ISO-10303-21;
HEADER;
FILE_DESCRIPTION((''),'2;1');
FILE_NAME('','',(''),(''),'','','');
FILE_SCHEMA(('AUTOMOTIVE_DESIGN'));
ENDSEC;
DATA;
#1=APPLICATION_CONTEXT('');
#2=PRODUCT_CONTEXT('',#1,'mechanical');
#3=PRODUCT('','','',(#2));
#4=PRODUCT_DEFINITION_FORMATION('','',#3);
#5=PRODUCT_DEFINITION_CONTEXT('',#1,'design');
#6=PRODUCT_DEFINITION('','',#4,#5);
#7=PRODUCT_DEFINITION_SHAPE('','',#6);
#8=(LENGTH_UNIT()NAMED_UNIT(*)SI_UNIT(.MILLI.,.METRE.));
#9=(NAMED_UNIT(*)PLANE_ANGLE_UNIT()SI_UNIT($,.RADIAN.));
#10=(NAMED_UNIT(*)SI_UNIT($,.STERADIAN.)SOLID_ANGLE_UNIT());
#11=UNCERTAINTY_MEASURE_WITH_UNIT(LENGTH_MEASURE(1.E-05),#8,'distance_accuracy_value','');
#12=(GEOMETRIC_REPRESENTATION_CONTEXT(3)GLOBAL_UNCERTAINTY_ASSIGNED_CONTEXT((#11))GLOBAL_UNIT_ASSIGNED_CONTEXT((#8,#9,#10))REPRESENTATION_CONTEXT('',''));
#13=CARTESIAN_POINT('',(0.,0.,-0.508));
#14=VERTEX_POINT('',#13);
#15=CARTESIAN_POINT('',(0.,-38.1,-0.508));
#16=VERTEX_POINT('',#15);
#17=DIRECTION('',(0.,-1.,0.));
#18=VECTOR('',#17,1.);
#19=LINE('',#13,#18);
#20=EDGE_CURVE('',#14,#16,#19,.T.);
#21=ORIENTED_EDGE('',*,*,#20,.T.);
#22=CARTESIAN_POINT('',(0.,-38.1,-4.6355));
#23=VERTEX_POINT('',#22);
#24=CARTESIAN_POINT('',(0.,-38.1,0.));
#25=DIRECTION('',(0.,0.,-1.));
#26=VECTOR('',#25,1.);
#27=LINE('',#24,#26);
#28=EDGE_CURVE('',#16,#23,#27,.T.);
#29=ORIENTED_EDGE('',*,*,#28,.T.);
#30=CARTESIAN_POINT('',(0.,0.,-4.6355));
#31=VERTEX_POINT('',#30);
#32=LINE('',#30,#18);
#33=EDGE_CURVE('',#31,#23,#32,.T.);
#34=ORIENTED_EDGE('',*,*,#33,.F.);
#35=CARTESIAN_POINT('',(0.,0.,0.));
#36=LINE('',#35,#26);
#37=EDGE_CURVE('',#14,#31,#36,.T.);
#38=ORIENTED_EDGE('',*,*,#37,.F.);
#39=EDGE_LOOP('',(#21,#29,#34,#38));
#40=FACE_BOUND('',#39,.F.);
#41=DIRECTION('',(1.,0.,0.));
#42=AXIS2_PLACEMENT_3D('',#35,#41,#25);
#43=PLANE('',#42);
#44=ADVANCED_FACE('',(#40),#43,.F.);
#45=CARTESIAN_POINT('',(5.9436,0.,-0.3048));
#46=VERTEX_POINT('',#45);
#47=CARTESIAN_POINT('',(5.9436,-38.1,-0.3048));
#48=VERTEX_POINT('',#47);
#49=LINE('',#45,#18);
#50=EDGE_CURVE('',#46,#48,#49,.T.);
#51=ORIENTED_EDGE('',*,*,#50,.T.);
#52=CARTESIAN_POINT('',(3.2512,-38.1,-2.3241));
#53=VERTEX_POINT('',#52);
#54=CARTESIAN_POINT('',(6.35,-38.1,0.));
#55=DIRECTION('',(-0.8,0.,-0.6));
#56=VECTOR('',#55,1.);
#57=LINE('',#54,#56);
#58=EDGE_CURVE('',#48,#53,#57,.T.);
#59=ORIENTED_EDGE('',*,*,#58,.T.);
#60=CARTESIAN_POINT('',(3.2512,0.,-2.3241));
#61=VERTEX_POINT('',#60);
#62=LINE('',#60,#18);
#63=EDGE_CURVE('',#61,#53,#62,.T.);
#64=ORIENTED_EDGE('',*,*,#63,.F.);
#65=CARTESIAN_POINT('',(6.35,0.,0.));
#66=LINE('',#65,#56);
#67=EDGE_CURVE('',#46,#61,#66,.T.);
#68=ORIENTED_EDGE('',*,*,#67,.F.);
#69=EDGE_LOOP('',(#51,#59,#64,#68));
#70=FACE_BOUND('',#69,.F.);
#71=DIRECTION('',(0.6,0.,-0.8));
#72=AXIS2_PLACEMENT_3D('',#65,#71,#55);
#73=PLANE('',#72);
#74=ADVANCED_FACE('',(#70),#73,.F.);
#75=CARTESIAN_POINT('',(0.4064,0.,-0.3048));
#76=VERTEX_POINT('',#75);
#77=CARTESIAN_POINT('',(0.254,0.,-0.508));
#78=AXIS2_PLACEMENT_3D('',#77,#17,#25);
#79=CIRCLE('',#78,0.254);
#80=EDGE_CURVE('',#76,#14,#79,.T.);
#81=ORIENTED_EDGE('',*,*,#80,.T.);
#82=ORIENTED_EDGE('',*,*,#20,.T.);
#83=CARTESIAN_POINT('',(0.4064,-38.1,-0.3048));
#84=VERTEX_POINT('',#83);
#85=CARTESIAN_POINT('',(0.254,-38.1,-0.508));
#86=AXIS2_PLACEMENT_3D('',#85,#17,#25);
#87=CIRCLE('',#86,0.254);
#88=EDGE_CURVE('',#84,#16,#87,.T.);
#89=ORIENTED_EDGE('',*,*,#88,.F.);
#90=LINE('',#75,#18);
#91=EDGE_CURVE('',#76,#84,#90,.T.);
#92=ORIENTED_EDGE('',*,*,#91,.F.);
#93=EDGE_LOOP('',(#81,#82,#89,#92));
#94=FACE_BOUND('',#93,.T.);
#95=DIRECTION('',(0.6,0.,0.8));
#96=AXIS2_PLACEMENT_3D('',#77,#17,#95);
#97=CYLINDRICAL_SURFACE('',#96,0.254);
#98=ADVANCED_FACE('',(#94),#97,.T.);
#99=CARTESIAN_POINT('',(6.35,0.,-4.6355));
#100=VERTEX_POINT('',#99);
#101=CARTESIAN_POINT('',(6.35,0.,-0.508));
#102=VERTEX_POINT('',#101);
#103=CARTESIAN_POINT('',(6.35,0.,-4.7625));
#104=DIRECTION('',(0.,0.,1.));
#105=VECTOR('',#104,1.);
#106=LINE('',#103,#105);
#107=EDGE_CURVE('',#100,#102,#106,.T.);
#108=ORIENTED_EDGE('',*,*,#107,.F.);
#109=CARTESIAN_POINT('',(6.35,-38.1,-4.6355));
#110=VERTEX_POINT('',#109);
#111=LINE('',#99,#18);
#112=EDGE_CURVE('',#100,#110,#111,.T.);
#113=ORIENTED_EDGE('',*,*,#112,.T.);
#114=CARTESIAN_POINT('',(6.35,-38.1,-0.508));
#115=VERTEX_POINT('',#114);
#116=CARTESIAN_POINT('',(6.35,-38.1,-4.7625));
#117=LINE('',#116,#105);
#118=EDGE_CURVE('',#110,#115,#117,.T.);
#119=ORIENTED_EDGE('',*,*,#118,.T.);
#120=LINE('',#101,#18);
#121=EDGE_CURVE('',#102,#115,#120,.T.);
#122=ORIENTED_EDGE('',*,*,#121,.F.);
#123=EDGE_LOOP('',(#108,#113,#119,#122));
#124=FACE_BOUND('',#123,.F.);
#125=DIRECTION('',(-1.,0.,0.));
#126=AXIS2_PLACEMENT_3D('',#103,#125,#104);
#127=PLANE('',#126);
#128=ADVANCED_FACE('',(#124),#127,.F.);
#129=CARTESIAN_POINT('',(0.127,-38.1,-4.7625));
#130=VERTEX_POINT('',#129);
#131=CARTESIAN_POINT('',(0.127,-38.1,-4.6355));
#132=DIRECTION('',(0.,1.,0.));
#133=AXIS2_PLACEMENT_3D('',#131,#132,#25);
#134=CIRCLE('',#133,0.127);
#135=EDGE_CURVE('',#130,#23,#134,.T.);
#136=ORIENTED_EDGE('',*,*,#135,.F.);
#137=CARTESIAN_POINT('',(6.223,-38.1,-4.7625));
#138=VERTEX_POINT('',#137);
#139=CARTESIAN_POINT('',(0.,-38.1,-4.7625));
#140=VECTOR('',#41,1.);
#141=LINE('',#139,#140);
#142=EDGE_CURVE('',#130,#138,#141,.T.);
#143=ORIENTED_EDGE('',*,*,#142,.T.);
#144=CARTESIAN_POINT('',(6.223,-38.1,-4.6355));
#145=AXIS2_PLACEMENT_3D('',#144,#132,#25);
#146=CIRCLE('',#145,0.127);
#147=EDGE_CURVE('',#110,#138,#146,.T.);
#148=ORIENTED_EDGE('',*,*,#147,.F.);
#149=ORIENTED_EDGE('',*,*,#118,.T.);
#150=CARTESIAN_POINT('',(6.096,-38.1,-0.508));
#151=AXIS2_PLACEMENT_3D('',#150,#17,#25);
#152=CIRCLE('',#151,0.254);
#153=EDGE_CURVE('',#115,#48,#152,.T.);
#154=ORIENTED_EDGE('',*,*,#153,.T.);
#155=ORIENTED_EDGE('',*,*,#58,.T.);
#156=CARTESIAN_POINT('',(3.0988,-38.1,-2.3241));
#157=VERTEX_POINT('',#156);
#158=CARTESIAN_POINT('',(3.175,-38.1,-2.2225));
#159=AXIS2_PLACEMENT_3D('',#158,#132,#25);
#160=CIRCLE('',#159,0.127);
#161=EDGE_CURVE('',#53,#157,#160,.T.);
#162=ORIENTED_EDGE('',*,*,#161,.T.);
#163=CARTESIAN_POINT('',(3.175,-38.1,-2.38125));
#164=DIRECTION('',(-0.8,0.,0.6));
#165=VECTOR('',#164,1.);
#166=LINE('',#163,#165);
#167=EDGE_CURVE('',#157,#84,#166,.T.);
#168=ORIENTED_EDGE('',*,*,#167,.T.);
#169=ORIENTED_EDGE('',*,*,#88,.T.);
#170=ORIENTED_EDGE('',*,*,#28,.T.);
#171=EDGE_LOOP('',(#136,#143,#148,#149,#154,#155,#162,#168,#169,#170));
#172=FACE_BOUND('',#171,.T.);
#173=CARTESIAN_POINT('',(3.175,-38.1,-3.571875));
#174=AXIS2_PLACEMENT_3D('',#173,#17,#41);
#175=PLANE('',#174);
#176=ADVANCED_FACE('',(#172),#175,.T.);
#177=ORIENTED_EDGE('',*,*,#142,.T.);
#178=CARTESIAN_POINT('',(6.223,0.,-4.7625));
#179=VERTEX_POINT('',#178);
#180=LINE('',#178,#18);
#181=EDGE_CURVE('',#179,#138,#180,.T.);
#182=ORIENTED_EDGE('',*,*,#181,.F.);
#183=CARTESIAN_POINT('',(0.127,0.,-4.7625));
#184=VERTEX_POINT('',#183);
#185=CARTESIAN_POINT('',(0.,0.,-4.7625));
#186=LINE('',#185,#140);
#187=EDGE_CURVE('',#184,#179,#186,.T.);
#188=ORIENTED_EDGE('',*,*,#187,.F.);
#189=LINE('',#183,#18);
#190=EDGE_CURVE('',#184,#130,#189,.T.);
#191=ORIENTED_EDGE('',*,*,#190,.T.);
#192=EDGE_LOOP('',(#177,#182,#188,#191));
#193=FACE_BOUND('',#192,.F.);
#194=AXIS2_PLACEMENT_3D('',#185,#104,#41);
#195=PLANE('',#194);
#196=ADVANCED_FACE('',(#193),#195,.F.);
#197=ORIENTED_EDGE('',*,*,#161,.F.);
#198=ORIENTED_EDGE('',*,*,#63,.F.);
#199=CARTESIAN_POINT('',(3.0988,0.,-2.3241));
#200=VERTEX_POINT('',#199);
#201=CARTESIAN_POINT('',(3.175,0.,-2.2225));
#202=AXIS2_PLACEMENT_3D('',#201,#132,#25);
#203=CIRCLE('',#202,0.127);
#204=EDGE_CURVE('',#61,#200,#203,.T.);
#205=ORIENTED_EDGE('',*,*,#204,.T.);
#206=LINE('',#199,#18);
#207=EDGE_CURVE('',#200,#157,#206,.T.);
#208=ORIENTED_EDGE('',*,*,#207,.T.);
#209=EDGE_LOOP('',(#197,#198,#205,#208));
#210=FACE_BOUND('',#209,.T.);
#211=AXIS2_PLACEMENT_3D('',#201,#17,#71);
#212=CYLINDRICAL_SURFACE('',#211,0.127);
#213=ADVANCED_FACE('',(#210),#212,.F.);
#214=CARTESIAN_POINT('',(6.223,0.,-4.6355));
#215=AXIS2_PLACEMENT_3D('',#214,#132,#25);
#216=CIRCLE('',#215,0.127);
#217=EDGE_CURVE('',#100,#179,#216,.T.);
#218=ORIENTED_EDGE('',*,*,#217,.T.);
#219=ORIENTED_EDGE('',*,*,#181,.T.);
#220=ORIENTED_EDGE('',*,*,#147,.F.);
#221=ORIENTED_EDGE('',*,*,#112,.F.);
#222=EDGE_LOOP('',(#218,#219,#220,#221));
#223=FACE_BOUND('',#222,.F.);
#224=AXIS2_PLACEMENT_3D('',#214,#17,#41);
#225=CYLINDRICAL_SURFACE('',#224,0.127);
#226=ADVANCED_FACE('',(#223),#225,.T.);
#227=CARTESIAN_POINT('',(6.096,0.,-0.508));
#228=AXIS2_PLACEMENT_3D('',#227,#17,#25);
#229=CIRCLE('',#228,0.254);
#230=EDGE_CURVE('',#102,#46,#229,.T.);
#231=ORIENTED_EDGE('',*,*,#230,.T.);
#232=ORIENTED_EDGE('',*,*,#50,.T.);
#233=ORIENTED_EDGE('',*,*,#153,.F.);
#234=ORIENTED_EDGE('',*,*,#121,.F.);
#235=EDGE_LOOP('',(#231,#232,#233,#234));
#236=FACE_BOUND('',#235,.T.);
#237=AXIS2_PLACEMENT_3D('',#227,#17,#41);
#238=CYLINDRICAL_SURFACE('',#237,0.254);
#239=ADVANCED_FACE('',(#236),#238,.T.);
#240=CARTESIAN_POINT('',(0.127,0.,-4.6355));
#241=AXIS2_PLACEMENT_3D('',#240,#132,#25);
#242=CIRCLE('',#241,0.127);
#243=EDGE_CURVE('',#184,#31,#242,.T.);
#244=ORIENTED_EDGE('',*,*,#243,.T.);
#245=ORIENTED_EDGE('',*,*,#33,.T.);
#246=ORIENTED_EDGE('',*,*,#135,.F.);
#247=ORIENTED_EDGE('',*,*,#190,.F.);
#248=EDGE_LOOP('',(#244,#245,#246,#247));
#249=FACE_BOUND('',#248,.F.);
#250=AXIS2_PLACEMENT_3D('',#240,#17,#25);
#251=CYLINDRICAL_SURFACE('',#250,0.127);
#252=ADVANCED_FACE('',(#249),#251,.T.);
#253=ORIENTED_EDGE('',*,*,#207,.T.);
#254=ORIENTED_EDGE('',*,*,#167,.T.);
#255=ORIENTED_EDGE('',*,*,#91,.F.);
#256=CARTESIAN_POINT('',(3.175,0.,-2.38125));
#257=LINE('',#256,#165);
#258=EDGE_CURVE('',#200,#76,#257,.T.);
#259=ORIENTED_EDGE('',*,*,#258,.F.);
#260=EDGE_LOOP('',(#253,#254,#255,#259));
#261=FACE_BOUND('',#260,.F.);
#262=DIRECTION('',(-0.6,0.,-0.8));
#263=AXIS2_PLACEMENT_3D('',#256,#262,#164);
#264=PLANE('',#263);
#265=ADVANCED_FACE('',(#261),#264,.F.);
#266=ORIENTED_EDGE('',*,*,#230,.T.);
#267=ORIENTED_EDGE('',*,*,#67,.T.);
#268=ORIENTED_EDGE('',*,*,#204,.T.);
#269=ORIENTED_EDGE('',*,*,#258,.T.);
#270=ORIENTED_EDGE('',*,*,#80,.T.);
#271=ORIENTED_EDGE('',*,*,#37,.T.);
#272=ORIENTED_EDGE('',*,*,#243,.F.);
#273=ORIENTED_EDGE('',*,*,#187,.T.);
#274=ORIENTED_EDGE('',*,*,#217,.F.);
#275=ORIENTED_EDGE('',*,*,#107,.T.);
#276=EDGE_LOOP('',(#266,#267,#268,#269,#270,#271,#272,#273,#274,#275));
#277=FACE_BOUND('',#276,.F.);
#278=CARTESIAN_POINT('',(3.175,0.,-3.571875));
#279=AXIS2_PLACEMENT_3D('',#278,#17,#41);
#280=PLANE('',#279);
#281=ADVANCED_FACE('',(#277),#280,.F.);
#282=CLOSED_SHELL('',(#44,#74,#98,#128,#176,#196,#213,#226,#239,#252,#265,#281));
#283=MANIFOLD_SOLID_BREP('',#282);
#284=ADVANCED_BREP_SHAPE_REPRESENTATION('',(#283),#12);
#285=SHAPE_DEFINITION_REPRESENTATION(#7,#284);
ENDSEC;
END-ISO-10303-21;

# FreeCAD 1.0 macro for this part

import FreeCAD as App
import Part
import Sketcher

V = App.Vector
Q = App.Units.Quantity


def edges_at(feature, points):
    """Names of the edges that pass closest to the given points."""
    edges = feature.Shape.Edges
    near = lambda p: min(range(len(edges)), key=lambda i: edges[i].distToShape(Part.Vertex(*p))[0])
    return sorted({f"Edge{near(p) + 1}" for p in points})


def add_polygon(sketch, points):
    """Adds a closed chain of lines whose ends are joined by coincident constraints."""
    first, n = sketch.GeometryCount, len(points)
    for a, b in zip(points, points[1:] + points[:1]):
        sketch.addGeometry(Part.LineSegment(App.Vector(*a, 0), App.Vector(*b, 0)), False)
    for i in range(n):
        sketch.addConstraint(Sketcher.Constraint("Coincident", first + i, 2, first + (i + 1) % n, 1))

doc = App.newDocument("Part")
body = doc.addObject("PartDesign::Body", "Body")

sketch1 = doc.addObject("Sketcher::SketchObject", "Sketch")
body.addObject(sketch1)
sketch1.AttachmentSupport = (doc.XZ_Plane, [""])
sketch1.MapMode = "FlatFace"
add_polygon(sketch1, [(0, -4.8), (6.3, -4.8), (6.3, 0), (3.2, -2.4), (0, 0)])
sketch1.addConstraint(Sketcher.Constraint("Horizontal", 0))
sketch1.addConstraint(Sketcher.Constraint("Vertical", 1))
sketch1.addConstraint(Sketcher.Constraint("Vertical", 4))
sketch1.addConstraint(Sketcher.Constraint("Coincident", 3, 2, -1, 1))
sketch1.addConstraint(Sketcher.Constraint("PointOnObject", 1, 2, -1))
sketch1.addConstraint(Sketcher.Constraint("Equal", 2, 3))
sketch1.addConstraint(Sketcher.Constraint("DistanceX", 0, 1, 0, 2, Q("0.25 in")))
sketch1.addConstraint(Sketcher.Constraint("DistanceY", 1, 1, 1, 2, Q("0.1875 in")))
sketch1.addConstraint(Sketcher.Constraint("Distance", 2, Q("0.15625 in")))
pad1 = doc.addObject("PartDesign::Pad", "Pad")
body.addObject(pad1)
pad1.Profile = sketch1
pad1.Length = Q("1.5 in")
doc.recompute()

fillet = doc.addObject("PartDesign::Fillet", "Fillet")
body.addObject(fillet)
fillet.Base = (pad1, edges_at(pad1, [(0, -19.05, 0), (6.35, -19.05, 0)]))
fillet.Radius = Q("0.01 in")
doc.recompute()

fillet2 = doc.addObject("PartDesign::Fillet", "Fillet001")
body.addObject(fillet2)
fillet2.Base = (fillet, edges_at(fillet, [(3.175, -19.05, -2.381), (6.35, -19.05, -4.763), (0, -19.05, -4.763)]))
fillet2.Radius = Q("0.005 in")

doc.recompute()
